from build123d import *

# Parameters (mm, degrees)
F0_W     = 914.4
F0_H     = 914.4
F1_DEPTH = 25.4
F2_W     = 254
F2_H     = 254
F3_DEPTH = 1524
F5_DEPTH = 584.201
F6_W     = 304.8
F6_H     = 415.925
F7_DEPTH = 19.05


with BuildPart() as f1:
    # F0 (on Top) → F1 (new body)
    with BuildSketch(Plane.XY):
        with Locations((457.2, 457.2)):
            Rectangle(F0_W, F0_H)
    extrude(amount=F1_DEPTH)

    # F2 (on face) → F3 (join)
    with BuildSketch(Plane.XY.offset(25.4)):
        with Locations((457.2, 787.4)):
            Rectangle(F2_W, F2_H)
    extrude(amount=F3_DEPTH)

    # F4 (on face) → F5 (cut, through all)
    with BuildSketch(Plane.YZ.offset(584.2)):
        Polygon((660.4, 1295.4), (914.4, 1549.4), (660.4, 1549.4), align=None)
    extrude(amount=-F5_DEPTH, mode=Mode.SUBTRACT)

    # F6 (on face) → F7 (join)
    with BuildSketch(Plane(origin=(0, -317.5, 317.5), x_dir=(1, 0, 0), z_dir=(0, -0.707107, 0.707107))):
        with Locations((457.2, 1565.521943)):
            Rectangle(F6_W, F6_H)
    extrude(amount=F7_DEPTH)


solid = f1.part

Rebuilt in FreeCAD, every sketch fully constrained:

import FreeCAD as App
import Part
import Sketcher
Q = App.Units.Quantity

doc = App.newDocument("Part")
params = doc.addObject("Spreadsheet::Sheet", "Params")
for row, (alias, value) in enumerate([
    ("sketch1_width", "36 in"),
    ("pad1_length", "1 in"),
    ("sketch2_width", "10 in"),
    ("pad2_length", "60 in"),
    ("sketch3_width", "10 in"),
    ("sketch4_width", "12 in"),
    ("sketch4_height", "16.375 in"),
    ("pad3_length", "0.75 in"),
], start=1):
    params.set(f"A{row}", alias)
    params.set(f"B{row}", "=" + value)
    params.setAlias(f"B{row}", alias)

body = doc.addObject("PartDesign::Body", "Body")

# Sketch on XY plane
sketch1 = body.newObject("Sketcher::SketchObject", "Sketch")
sketch1.AttachmentSupport = (doc.getObject("XY_Plane"), [""])
sketch1.MapMode = "FlatFace"
sketch1.addGeometry(Part.LineSegment(App.Vector(0, 914, 0), App.Vector(0, 0, 0)), False)
sketch1.addGeometry(Part.LineSegment(App.Vector(0, 0, 0), App.Vector(914, 0, 0)), False)
sketch1.addGeometry(Part.LineSegment(App.Vector(914, 0, 0), App.Vector(914, 914, 0)), False)
sketch1.addGeometry(Part.LineSegment(App.Vector(914, 914, 0), App.Vector(0, 914, 0)), False)
sketch1.addConstraint(Sketcher.Constraint("Coincident", 0, 2, 1, 1))
sketch1.addConstraint(Sketcher.Constraint("Coincident", 1, 2, 2, 1))
sketch1.addConstraint(Sketcher.Constraint("Coincident", 2, 2, 3, 1))
sketch1.addConstraint(Sketcher.Constraint("Coincident", 3, 2, 0, 1))
sketch1.addConstraint(Sketcher.Constraint("Vertical", 0))
sketch1.addConstraint(Sketcher.Constraint("Horizontal", 1))
sketch1.addConstraint(Sketcher.Constraint("Vertical", 2))
sketch1.addConstraint(Sketcher.Constraint("Horizontal", 3))
sketch1.addConstraint(Sketcher.Constraint("Coincident", 0, 2, -1, 1))
sketch1.addConstraint(Sketcher.Constraint("Equal", 3, 0))
sketch1.addConstraint(Sketcher.Constraint("DistanceX", 1, 1, 1, 2, Q("36 in")))
sketch1.setExpression("Constraints[10]", "Params.sketch1_width")
pad1 = body.newObject("PartDesign::Pad", "Pad")
pad1.Profile = sketch1
pad1.setExpression("Length", "Params.pad1_length")

# Sketch on XY plane
sketch2 = body.newObject("Sketcher::SketchObject", "Sketch001")
sketch2.AttachmentSupport = (doc.getObject("XY_Plane"), [""])
sketch2.MapMode = "FlatFace"
sketch2.AttachmentOffset = App.Placement(App.Vector(0, 0, 1 * 25.4), App.Rotation())
sketch2.addGeometry(Part.LineSegment(App.Vector(330, 914, 0), App.Vector(330, 660, 0)), False)
sketch2.addGeometry(Part.LineSegment(App.Vector(330, 660, 0), App.Vector(584, 660, 0)), False)
sketch2.addGeometry(Part.LineSegment(App.Vector(584, 660, 0), App.Vector(584, 914, 0)), False)
sketch2.addGeometry(Part.LineSegment(App.Vector(584, 914, 0), App.Vector(330, 914, 0)), False)
sketch2.addConstraint(Sketcher.Constraint("Coincident", 0, 2, 1, 1))
sketch2.addConstraint(Sketcher.Constraint("Coincident", 1, 2, 2, 1))
sketch2.addConstraint(Sketcher.Constraint("Coincident", 2, 2, 3, 1))
sketch2.addConstraint(Sketcher.Constraint("Coincident", 3, 2, 0, 1))
sketch2.addConstraint(Sketcher.Constraint("Vertical", 0))
sketch2.addConstraint(Sketcher.Constraint("Horizontal", 1))
sketch2.addConstraint(Sketcher.Constraint("Vertical", 2))
sketch2.addConstraint(Sketcher.Constraint("Horizontal", 3))
sketch2.addConstraint(Sketcher.Constraint("Equal", 3, 0))
sketch2.addConstraint(Sketcher.Constraint("DistanceX", 1, 1, 1, 2, Q("10 in")))
sketch2.addConstraint(Sketcher.Constraint("DistanceX", -1, 1, 0, 2, Q("13 in")))
sketch2.addConstraint(Sketcher.Constraint("DistanceY", -1, 1, 0, 2, Q("26 in")))
sketch2.setExpression("Constraints[9]", "Params.sketch2_width")
pad2 = body.newObject("PartDesign::Pad", "Pad001")
pad2.Profile = sketch2
pad2.setExpression("Length", "Params.pad2_length")

# Sketch on YZ plane
sketch3 = body.newObject("Sketcher::SketchObject", "Sketch002")
sketch3.AttachmentSupport = (doc.getObject("YZ_Plane"), [""])
sketch3.MapMode = "FlatFace"
sketch3.AttachmentOffset = App.Placement(App.Vector(0, 0, 23 * 25.4), App.Rotation())
sketch3.addGeometry(Part.LineSegment(App.Vector(660, 1295, 0), App.Vector(914, 1549, 0)), False)
sketch3.addGeometry(Part.LineSegment(App.Vector(914, 1549, 0), App.Vector(660, 1549, 0)), False)
sketch3.addGeometry(Part.LineSegment(App.Vector(660, 1549, 0), App.Vector(660, 1295, 0)), False)
sketch3.addConstraint(Sketcher.Constraint("Coincident", 0, 2, 1, 1))
sketch3.addConstraint(Sketcher.Constraint("Coincident", 1, 2, 2, 1))
sketch3.addConstraint(Sketcher.Constraint("Coincident", 2, 2, 0, 1))
sketch3.addConstraint(Sketcher.Constraint("Horizontal", 1))
sketch3.addConstraint(Sketcher.Constraint("Vertical", 2))
sketch3.addConstraint(Sketcher.Constraint("Equal", 1, 2))
sketch3.addConstraint(Sketcher.Constraint("DistanceX", 1, 2, 1, 1, Q("10 in")))
sketch3.addConstraint(Sketcher.Constraint("DistanceX", -1, 1, 0, 2, Q("36 in")))
sketch3.addConstraint(Sketcher.Constraint("DistanceY", -1, 1, 0, 2, Q("61 in")))
sketch3.setExpression("Constraints[6]", "Params.sketch3_width")
pocket1 = body.newObject("PartDesign::Pocket", "Pocket")
pocket1.Profile = sketch3
pocket1.Type = "ThroughAll"

# Sketch on an angled plane
sketch4 = body.newObject("Sketcher::SketchObject", "Sketch003")
sketch4.Placement = App.Placement(App.Vector(0, -317.5, 317.5), App.Rotation(App.Vector(1, 0, 0), App.Vector(0, 0.707106781, 0.707106781), App.Vector(0, -0.707106781, 0.707106781), "ZXY"))
sketch4.addGeometry(Part.LineSegment(App.Vector(305, 1773, 0), App.Vector(305, 1358, 0)), False)
sketch4.addGeometry(Part.LineSegment(App.Vector(305, 1358, 0), App.Vector(610, 1358, 0)), False)
sketch4.addGeometry(Part.LineSegment(App.Vector(610, 1358, 0), App.Vector(610, 1773, 0)), False)
sketch4.addGeometry(Part.LineSegment(App.Vector(610, 1773, 0), App.Vector(305, 1773, 0)), False)
sketch4.addConstraint(Sketcher.Constraint("Coincident", 0, 2, 1, 1))
sketch4.addConstraint(Sketcher.Constraint("Coincident", 1, 2, 2, 1))
sketch4.addConstraint(Sketcher.Constraint("Coincident", 2, 2, 3, 1))
sketch4.addConstraint(Sketcher.Constraint("Coincident", 3, 2, 0, 1))
sketch4.addConstraint(Sketcher.Constraint("Vertical", 0))
sketch4.addConstraint(Sketcher.Constraint("Horizontal", 1))
sketch4.addConstraint(Sketcher.Constraint("Vertical", 2))
sketch4.addConstraint(Sketcher.Constraint("Horizontal", 3))
sketch4.addConstraint(Sketcher.Constraint("DistanceX", 1, 1, 1, 2, Q("12 in")))
sketch4.addConstraint(Sketcher.Constraint("DistanceX", -1, 1, 0, 2, Q("12 in")))
sketch4.addConstraint(Sketcher.Constraint("DistanceY", 0, 2, 0, 1, Q("16.375 in")))
sketch4.addConstraint(Sketcher.Constraint("DistanceY", -1, 1, 0, 2, Q("1357.559442 mm")))
sketch4.setExpression("Constraints[8]", "Params.sketch4_width")
sketch4.setExpression("Constraints[10]", "Params.sketch4_height")
pad3 = body.newObject("PartDesign::Pad", "Pad002")
pad3.Profile = sketch4
pad3.setExpression("Length", "Params.pad3_length")

doc.recompute()
